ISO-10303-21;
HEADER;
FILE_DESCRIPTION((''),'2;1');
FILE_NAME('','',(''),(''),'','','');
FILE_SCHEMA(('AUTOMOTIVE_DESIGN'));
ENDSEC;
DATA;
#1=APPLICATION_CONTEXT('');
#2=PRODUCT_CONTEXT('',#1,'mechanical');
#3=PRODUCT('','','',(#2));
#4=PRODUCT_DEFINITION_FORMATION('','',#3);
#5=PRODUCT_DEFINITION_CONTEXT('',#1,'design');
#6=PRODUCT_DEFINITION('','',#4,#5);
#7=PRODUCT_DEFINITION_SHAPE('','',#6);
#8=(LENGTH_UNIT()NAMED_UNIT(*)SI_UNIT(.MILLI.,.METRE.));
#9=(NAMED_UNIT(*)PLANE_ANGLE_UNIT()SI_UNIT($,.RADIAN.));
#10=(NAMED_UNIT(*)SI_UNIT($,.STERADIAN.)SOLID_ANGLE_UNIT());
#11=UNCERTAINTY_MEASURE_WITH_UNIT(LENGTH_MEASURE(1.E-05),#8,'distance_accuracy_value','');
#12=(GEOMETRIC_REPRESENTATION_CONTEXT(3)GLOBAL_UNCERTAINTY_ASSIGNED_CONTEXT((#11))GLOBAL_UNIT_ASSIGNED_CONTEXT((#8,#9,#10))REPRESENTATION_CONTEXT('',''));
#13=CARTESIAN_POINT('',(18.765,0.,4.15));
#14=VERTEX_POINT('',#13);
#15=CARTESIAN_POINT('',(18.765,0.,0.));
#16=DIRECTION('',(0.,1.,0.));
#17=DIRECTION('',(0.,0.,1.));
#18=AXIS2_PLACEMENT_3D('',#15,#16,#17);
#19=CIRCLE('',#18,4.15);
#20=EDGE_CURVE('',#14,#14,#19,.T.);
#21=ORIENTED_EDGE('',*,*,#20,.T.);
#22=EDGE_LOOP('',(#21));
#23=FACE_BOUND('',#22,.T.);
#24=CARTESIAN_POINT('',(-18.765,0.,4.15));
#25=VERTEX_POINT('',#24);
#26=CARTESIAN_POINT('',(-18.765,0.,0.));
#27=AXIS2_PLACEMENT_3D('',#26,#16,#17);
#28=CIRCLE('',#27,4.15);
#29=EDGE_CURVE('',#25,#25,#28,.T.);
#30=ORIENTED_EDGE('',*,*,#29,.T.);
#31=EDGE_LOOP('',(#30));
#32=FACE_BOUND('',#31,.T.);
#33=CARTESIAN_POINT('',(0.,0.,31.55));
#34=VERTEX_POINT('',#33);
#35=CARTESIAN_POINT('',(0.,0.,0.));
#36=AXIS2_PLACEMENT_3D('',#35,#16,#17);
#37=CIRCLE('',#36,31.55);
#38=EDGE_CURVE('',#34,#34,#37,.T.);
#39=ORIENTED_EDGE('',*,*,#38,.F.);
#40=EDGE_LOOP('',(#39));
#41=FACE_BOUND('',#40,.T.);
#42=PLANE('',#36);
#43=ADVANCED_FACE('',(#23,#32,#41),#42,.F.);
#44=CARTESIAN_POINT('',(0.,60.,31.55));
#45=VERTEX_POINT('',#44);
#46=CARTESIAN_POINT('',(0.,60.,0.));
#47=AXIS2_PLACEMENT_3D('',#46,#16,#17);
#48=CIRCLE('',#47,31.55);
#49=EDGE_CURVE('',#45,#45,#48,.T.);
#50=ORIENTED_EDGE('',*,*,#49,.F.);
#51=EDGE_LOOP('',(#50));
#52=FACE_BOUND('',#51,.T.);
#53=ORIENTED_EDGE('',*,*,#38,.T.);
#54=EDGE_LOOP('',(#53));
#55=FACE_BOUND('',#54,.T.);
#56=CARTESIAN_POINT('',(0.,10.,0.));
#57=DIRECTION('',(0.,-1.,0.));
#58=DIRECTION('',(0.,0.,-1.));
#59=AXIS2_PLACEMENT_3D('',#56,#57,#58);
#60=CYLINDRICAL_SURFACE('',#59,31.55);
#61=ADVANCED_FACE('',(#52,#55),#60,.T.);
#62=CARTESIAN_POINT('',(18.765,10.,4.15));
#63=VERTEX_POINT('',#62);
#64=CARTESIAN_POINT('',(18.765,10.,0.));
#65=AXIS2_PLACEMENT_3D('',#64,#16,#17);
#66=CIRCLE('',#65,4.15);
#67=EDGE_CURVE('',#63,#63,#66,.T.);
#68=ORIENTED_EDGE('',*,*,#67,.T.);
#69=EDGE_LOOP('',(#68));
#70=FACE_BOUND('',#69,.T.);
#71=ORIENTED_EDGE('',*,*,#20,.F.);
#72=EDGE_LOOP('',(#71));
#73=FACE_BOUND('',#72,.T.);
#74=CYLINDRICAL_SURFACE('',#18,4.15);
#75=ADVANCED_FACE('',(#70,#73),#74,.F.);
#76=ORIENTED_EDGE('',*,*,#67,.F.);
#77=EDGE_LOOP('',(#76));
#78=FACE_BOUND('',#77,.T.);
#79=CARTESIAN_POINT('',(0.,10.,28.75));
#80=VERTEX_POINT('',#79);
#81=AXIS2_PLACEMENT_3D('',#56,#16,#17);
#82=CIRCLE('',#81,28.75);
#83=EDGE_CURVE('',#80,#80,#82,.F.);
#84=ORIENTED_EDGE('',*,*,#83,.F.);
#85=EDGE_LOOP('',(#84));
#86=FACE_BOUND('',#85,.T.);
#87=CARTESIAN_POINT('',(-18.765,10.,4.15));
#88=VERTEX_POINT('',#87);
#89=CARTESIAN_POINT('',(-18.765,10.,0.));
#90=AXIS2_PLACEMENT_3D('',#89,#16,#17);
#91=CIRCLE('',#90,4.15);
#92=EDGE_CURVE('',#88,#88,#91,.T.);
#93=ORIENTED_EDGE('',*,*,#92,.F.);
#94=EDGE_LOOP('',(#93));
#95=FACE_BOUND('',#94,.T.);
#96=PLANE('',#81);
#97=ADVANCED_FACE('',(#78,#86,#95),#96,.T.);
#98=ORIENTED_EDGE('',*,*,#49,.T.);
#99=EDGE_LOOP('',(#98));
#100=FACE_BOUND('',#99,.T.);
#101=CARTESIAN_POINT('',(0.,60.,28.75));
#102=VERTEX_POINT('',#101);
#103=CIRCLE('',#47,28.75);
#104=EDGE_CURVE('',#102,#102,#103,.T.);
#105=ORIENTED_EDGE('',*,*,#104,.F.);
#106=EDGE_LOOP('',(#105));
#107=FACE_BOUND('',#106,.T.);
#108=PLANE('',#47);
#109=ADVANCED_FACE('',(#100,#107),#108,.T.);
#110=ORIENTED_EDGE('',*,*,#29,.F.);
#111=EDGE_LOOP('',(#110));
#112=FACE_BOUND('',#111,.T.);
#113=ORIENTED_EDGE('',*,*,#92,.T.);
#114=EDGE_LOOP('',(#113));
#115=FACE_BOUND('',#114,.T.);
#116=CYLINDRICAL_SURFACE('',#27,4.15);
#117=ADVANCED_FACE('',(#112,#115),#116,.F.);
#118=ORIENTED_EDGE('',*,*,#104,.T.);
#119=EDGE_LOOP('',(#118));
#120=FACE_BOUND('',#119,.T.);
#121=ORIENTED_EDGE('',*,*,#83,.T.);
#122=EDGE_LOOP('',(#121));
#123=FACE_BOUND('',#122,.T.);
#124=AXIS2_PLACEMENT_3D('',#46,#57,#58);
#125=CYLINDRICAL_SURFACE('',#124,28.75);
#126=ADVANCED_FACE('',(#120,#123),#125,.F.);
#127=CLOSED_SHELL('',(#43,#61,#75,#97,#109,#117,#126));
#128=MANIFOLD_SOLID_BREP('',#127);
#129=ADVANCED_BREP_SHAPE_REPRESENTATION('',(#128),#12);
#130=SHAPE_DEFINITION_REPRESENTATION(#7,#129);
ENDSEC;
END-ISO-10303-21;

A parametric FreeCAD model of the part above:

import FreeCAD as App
import Part
import Sketcher

doc = App.newDocument("Part")
body = doc.addObject("PartDesign::Body", "Body")

# Sketch on XZ plane
sketch1 = body.newObject("Sketcher::SketchObject", "Sketch")
sketch1.AttachmentSupport = (doc.getObject("XZ_Plane"), [""])
sketch1.MapMode = "FlatFace"
sketch1.addGeometry(Part.Circle(App.Vector(0, 0, 0), App.Vector(0, 0, 1), 32), False)
sketch1.addConstraint(Sketcher.Constraint("Coincident", 0, 3, -1, 1))
sketch1.addConstraint(Sketcher.Constraint("Diameter", 0, 63.1))
pad1 = body.newObject("PartDesign::Pad", "Pad")
pad1.Profile = sketch1
pad1.Length = 10
pad1.Reversed = True

# Sketch on XZ plane
sketch2 = body.newObject("Sketcher::SketchObject", "Sketch001")
sketch2.AttachmentSupport = (doc.getObject("XZ_Plane"), [""])
sketch2.MapMode = "FlatFace"
sketch2.AttachmentOffset = App.Placement(App.Vector(0, 0, -10), App.Rotation())
sketch2.addGeometry(Part.Circle(App.Vector(-18.8, 0, 0), App.Vector(0, 0, 1), 4.2), False)
sketch2.addGeometry(Part.Circle(App.Vector(18.8, 0, 0), App.Vector(0, 0, 1), 4.2), False)
sketch2.addConstraint(Sketcher.Constraint("Equal", 0, 1))
sketch2.addConstraint(Sketcher.Constraint("Symmetric", 0, 3, 1, 3, -1, 1))
sketch2.addConstraint(Sketcher.Constraint("PointOnObject", 0, 3, -1))
sketch2.addConstraint(Sketcher.Constraint("Diameter", 0, 8.3))
sketch2.addConstraint(Sketcher.Constraint("DistanceX", 0, 3, 1, 3, 37.53))
pocket1 = body.newObject("PartDesign::Pocket", "Pocket")
pocket1.Profile = sketch2
pocket1.Length = 10
pocket1.Reversed = True

# Sketch on XZ plane
sketch3 = body.newObject("Sketcher::SketchObject", "Sketch002")
sketch3.AttachmentSupport = (doc.getObject("XZ_Plane"), [""])
sketch3.MapMode = "FlatFace"
sketch3.AttachmentOffset = App.Placement(App.Vector(0, 0, -10), App.Rotation())
sketch3.addGeometry(Part.Circle(App.Vector(0, 0, 0), App.Vector(0, 0, 1), 32), False)
sketch3.addGeometry(Part.Circle(App.Vector(0, 0, 0), App.Vector(0, 0, 1), 29), False)
sketch3.addConstraint(Sketcher.Constraint("Coincident", 0, 3, -1, 1))
sketch3.addConstraint(Sketcher.Constraint("Coincident", 1, 3, -1, 1))
sketch3.addConstraint(Sketcher.Constraint("Diameter", 0, 63.1))
sketch3.addConstraint(Sketcher.Constraint("Diameter", 1, 57.5))
pad2 = body.newObject("PartDesign::Pad", "Pad001")
pad2.Profile = sketch3
pad2.Length = 50
pad2.Reversed = True

doc.recompute()
